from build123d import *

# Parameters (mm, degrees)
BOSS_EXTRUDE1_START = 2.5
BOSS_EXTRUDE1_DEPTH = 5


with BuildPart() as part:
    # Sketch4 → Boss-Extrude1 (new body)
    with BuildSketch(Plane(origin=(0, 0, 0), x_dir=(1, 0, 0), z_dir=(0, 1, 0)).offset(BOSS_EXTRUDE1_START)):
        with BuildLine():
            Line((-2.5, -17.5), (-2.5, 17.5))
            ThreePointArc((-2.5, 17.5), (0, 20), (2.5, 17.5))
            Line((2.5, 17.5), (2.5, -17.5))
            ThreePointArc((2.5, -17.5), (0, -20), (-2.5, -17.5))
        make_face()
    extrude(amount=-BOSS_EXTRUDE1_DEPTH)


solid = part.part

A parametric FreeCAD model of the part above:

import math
import FreeCAD as App
import Part
import Sketcher
from FreeCAD import Vector

doc = App.newDocument("Part")
body = doc.addObject("PartDesign::Body", "Body")

# Sketch on XZ plane
sketch1 = body.newObject("Sketcher::SketchObject", "Sketch")
sketch1.AttachmentSupport = (doc.getObject("XZ_Plane"), [""])
sketch1.MapMode = "FlatFace"
sketch1.AttachmentOffset = App.Placement(Vector(0, 0, -2.5), App.Rotation())
sketch1.addGeometry([
    Part.LineSegment(Vector(-2.5, -17.5, 0), Vector(-2.5, 17.5, 0)),
    Part.ArcOfCircle(Part.Circle(Vector(0, 17.5, 0), Vector(0, 0, 1), 2.5), math.radians(0), math.radians(180)),
    Part.LineSegment(Vector(2.5, 17.5, 0), Vector(2.5, -17.5, 0)),
    Part.ArcOfCircle(Part.Circle(Vector(0, -17.5, 0), Vector(0, 0, 1), 2.5), math.radians(180), math.radians(360)),
], False)
sketch1.addConstraint([
    Sketcher.Constraint("Tangent", 0, 2, 1, 2),
    Sketcher.Constraint("Tangent", 1, 1, 2, 1),
    Sketcher.Constraint("Tangent", 2, 2, 3, 2),
    Sketcher.Constraint("Tangent", 3, 1, 0, 1),
    Sketcher.Constraint("Vertical", 0),
    Sketcher.Constraint("Vertical", 2),
    Sketcher.Constraint("Symmetric", 1, 3, 3, 3, -1, 1),
    Sketcher.Constraint("Radius", 1, 2.5),
    Sketcher.Constraint("DistanceY", 0, 1, 0, 2, 35.0),
])
pad1 = body.newObject("PartDesign::Pad", "Pad")
pad1.Profile = sketch1
pad1.Length = 5

doc.recompute()
